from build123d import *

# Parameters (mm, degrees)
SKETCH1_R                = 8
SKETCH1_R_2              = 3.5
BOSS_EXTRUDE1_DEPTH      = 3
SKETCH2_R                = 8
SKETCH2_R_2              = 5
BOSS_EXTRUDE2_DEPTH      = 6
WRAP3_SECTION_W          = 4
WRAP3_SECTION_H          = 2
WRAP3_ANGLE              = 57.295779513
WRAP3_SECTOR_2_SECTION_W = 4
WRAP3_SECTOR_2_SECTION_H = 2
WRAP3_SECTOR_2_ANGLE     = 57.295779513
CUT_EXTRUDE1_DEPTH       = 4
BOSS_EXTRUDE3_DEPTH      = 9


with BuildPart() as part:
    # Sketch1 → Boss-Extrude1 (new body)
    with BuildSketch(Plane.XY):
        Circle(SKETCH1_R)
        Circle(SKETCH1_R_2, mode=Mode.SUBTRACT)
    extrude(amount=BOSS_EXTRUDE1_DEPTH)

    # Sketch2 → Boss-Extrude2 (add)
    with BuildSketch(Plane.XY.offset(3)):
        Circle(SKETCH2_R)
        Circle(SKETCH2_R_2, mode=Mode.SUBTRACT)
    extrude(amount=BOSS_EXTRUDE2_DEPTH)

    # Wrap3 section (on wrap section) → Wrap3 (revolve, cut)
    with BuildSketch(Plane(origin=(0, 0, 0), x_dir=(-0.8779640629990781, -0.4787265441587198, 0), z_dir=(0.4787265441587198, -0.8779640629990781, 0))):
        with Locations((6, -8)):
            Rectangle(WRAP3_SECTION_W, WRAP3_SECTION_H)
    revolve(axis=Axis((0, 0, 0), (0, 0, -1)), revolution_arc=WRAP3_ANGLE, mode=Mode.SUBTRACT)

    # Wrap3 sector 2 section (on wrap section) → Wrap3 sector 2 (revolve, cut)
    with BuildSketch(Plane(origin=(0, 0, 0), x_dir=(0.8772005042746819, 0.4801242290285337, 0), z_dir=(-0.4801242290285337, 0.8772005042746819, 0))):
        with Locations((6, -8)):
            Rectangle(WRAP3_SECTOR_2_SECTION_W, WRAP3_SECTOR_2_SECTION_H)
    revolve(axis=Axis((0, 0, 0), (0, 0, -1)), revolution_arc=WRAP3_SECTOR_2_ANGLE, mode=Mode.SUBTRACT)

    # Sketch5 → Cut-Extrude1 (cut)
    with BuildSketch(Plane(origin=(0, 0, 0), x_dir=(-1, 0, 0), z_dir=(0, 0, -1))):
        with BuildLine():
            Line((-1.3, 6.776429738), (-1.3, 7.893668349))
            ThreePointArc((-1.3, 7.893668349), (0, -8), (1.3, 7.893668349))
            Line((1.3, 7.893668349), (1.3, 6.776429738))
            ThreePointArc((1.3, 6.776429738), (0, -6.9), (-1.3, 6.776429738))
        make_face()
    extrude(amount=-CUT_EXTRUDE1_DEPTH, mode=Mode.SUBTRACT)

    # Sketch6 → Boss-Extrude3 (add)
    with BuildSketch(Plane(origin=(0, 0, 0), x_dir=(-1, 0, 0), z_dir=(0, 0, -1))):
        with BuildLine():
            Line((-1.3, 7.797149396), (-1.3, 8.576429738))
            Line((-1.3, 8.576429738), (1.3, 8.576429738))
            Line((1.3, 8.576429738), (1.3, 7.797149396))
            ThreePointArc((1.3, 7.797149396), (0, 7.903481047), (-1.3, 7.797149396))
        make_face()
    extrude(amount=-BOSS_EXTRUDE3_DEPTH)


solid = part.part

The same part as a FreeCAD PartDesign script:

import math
import FreeCAD as App
import Part
import Sketcher
Q = App.Units.Quantity


def add_polygon(sketch, points):
    """Adds a closed chain of lines whose ends are joined by coincident constraints."""
    first, n = sketch.GeometryCount, len(points)
    for a, b in zip(points, points[1:] + points[:1]):
        sketch.addGeometry(Part.LineSegment(App.Vector(*a, 0), App.Vector(*b, 0)), False)
    for i in range(n):
        sketch.addConstraint(Sketcher.Constraint("Coincident", first + i, 2, first + (i + 1) % n, 1))

doc = App.newDocument("Part")
body = doc.addObject("PartDesign::Body", "Body")

sketch1 = body.newObject("Sketcher::SketchObject", "Sketch")
sketch1.AttachmentSupport = (doc.getObject("XY_Plane"), [""])
sketch1.MapMode = "FlatFace"
sketch1.addGeometry([
    Part.Circle(App.Vector(0, 0, 0), App.Vector(0, 0, 1), 8),
    Part.Circle(App.Vector(0, 0, 0), App.Vector(0, 0, 1), 3.5),
], False)
sketch1.addConstraint([
    Sketcher.Constraint("Coincident", 0, 3, -1, 1),
    Sketcher.Constraint("Coincident", 1, 3, -1, 1),
    Sketcher.Constraint("Diameter", 0, Q("16 mm")),
    Sketcher.Constraint("Diameter", 1, Q("7 mm")),
])
pad1 = body.newObject("PartDesign::Pad", "Pad")
pad1.Profile = sketch1
pad1.Length = 3

sketch2 = body.newObject("Sketcher::SketchObject", "Sketch001")
sketch2.AttachmentSupport = (doc.getObject("XY_Plane"), [""])
sketch2.MapMode = "FlatFace"
sketch2.AttachmentOffset = App.Placement(App.Vector(0, 0, 3), App.Rotation())
sketch2.addGeometry([
    Part.Circle(App.Vector(0, 0, 0), App.Vector(0, 0, 1), 8),
    Part.Circle(App.Vector(0, 0, 0), App.Vector(0, 0, 1), 5),
], False)
sketch2.addConstraint([
    Sketcher.Constraint("Coincident", 0, 3, -1, 1),
    Sketcher.Constraint("Coincident", 1, 3, -1, 1),
    Sketcher.Constraint("Diameter", 0, Q("16 mm")),
    Sketcher.Constraint("Diameter", 1, Q("10 mm")),
])
pad2 = body.newObject("PartDesign::Pad", "Pad001")
pad2.Profile = sketch2
pad2.Length = 6

sketch3 = body.newObject("Sketcher::SketchObject", "Sketch002")
sketch3.Placement = App.Placement(App.Vector(0, 0, 0), App.Rotation(App.Vector(-0.877964063, -0.478726544, 0), App.Vector(0, 0, -1), App.Vector(0.478726544, -0.877964063, 0), "ZXY"))
add_polygon(sketch3, [(4, -7), (4, -9), (8, -9), (8, -7)])
sketch3.addConstraint([
    Sketcher.Constraint("Vertical", 0),
    Sketcher.Constraint("Horizontal", 1),
    Sketcher.Constraint("Vertical", 2),
    Sketcher.Constraint("Horizontal", 3),
    Sketcher.Constraint("DistanceX", 1, 1, 1, 2, Q("4 mm")),
    Sketcher.Constraint("DistanceY", 0, 2, 0, 1, Q("2 mm")),
    Sketcher.Constraint("DistanceX", -1, 1, 0, 2, Q("4 mm")),
    Sketcher.Constraint("DistanceY", 0, 2, -1, 1, Q("9 mm")),
])
groove = body.newObject("PartDesign::Groove", "Groove")
groove.Profile = sketch3
groove.ReferenceAxis = (sketch3, ["V_Axis"])
groove.Angle = 57.29578

sketch4 = body.newObject("Sketcher::SketchObject", "Sketch003")
sketch4.Placement = App.Placement(App.Vector(0, 0, 0), App.Rotation(App.Vector(0.877200504, 0.480124229, 0), App.Vector(0, 0, -0.999999999), App.Vector(-0.480124229, 0.877200504, 0), "ZXY"))
add_polygon(sketch4, [(4, -7), (4, -9), (8, -9), (8, -7)])
sketch4.addConstraint([
    Sketcher.Constraint("Vertical", 0),
    Sketcher.Constraint("Horizontal", 1),
    Sketcher.Constraint("Vertical", 2),
    Sketcher.Constraint("Horizontal", 3),
    Sketcher.Constraint("DistanceX", 1, 1, 1, 2, Q("4 mm")),
    Sketcher.Constraint("DistanceY", 0, 2, 0, 1, Q("2 mm")),
    Sketcher.Constraint("DistanceX", -1, 1, 0, 2, Q("4 mm")),
    Sketcher.Constraint("DistanceY", 0, 2, -1, 1, Q("9 mm")),
])
groove2 = body.newObject("PartDesign::Groove", "Groove001")
groove2.Profile = sketch4
groove2.ReferenceAxis = (sketch4, ["V_Axis"])
groove2.Angle = 57.29578

sketch5 = body.newObject("Sketcher::SketchObject", "Sketch004")
sketch5.AttachmentSupport = (doc.getObject("XY_Plane"), [""])
sketch5.MapMode = "FlatFace"
sketch5.addGeometry([
    Part.LineSegment(App.Vector(1.3, 6.8, 0), App.Vector(1.3, 7.9, 0)),
    Part.ArcOfCircle(Part.Circle(App.Vector(0, 0, 0), App.Vector(0, 0, 1), 8), math.radians(99), math.radians(441)),
    Part.LineSegment(App.Vector(-1.3, 7.9, 0), App.Vector(-1.3, 6.8, 0)),
    Part.ArcOfCircle(Part.Circle(App.Vector(0, 0, 0), App.Vector(0, 0, 1), 6.9), math.radians(101), math.radians(439)),
], False)
sketch5.addConstraint([
    Sketcher.Constraint("Coincident", 0, 2, 1, 2),
    Sketcher.Constraint("Coincident", 1, 1, 2, 1),
    Sketcher.Constraint("Coincident", 2, 2, 3, 1),
    Sketcher.Constraint("Coincident", 3, 2, 0, 1),
    Sketcher.Constraint("Vertical", 0),
    Sketcher.Constraint("Vertical", 2),
    Sketcher.Constraint("Coincident", 1, 3, -1, 1),
    Sketcher.Constraint("Coincident", 3, 3, -1, 1),
    Sketcher.Constraint("Horizontal", 0, 2, 1, 1),
    Sketcher.Constraint("Radius", 1, Q("8 mm")),
    Sketcher.Constraint("Radius", 3, Q("6.9 mm")),
    Sketcher.Constraint("DistanceX", -1, 1, 0, 2, Q("1.3 mm")),
])
pocket1 = body.newObject("PartDesign::Pocket", "Pocket")
pocket1.Profile = sketch5
pocket1.Length = 4
pocket1.Reversed = True

sketch6 = body.newObject("Sketcher::SketchObject", "Sketch005")
sketch6.AttachmentSupport = (doc.getObject("XY_Plane"), [""])
sketch6.MapMode = "FlatFace"
sketch6.addGeometry([
    Part.LineSegment(App.Vector(1.3, 8.6, 0), App.Vector(1.3, 7.8, 0)),
    Part.ArcOfCircle(Part.Circle(App.Vector(0, -0.1, 0), App.Vector(0, 0, 1), 8), math.radians(80.65), math.radians(99.35)),
    Part.LineSegment(App.Vector(-1.3, 7.8, 0), App.Vector(-1.3, 8.6, 0)),
    Part.LineSegment(App.Vector(-1.3, 8.6, 0), App.Vector(1.3, 8.6, 0)),
], False)
sketch6.addConstraint([
    Sketcher.Constraint("Coincident", 0, 2, 1, 1),
    Sketcher.Constraint("Coincident", 1, 2, 2, 1),
    Sketcher.Constraint("Coincident", 2, 2, 3, 1),
    Sketcher.Constraint("Coincident", 3, 2, 0, 1),
    Sketcher.Constraint("Vertical", 0),
    Sketcher.Constraint("Vertical", 2),
    Sketcher.Constraint("Horizontal", 3),
    Sketcher.Constraint("Symmetric", 0, 2, 1, 2, -2),
    Sketcher.Constraint("Radius", 1, Q("8 mm")),
    Sketcher.Constraint("DistanceX", 3, 1, 3, 2, Q("2.6 mm")),
    Sketcher.Constraint("DistanceY", 0, 2, 0, 1, Q("0.77928 mm")),
    Sketcher.Constraint("DistanceY", 1, 3, -1, 1, Q("0.096519 mm")),
])
pad3 = body.newObject("PartDesign::Pad", "Pad002")
pad3.Profile = sketch6
pad3.Length = 9

doc.recompute()
